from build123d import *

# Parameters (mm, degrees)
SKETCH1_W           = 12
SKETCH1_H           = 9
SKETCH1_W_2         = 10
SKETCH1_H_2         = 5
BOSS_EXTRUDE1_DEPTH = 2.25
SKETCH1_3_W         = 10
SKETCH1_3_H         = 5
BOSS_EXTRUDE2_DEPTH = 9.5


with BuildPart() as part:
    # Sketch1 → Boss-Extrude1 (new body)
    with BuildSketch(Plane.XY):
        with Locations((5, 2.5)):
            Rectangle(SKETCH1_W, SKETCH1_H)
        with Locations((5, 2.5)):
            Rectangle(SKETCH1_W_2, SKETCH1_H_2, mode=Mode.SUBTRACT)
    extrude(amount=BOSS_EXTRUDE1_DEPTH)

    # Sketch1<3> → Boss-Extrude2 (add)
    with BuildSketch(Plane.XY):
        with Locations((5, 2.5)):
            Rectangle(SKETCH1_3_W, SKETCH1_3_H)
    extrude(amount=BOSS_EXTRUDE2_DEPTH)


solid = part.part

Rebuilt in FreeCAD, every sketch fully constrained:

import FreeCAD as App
import Part
import Sketcher
Q = App.Units.Quantity

doc = App.newDocument("Part")
params = doc.addObject("Spreadsheet::Sheet", "Params")
for row, (alias, value) in enumerate([
    ("sketch1_width", "12 mm"),
    ("sketch1_width2", "10 mm"),
    ("sketch1_height", "9 mm"),
    ("sketch1_height2", "5 mm"),
    ("pad1_length", "2.25 mm"),
    ("sketch2_width", "10 mm"),
    ("sketch2_height", "5 mm"),
    ("pad2_length", "9.5 mm"),
], start=1):
    params.set(f"A{row}", alias)
    params.set(f"B{row}", "=" + value)
    params.setAlias(f"B{row}", alias)

body = doc.addObject("PartDesign::Body", "Body")

sketch1 = body.newObject("Sketcher::SketchObject", "Sketch")
sketch1.AttachmentSupport = (doc.getObject("XY_Plane"), [""])
sketch1.MapMode = "FlatFace"
sketch1.addGeometry(Part.LineSegment(App.Vector(-1, 7, 0), App.Vector(-1, -2, 0)), False)
sketch1.addGeometry(Part.LineSegment(App.Vector(-1, -2, 0), App.Vector(11, -2, 0)), False)
sketch1.addGeometry(Part.LineSegment(App.Vector(11, -2, 0), App.Vector(11, 7, 0)), False)
sketch1.addGeometry(Part.LineSegment(App.Vector(11, 7, 0), App.Vector(-1, 7, 0)), False)
sketch1.addGeometry(Part.LineSegment(App.Vector(10, 0, 0), App.Vector(0, 0, 0)), False)
sketch1.addGeometry(Part.LineSegment(App.Vector(0, 0, 0), App.Vector(0, 5, 0)), False)
sketch1.addGeometry(Part.LineSegment(App.Vector(0, 5, 0), App.Vector(10, 5, 0)), False)
sketch1.addGeometry(Part.LineSegment(App.Vector(10, 5, 0), App.Vector(10, 0, 0)), False)
sketch1.addConstraint(Sketcher.Constraint("Coincident", 0, 2, 1, 1))
sketch1.addConstraint(Sketcher.Constraint("Coincident", 1, 2, 2, 1))
sketch1.addConstraint(Sketcher.Constraint("Coincident", 2, 2, 3, 1))
sketch1.addConstraint(Sketcher.Constraint("Coincident", 3, 2, 0, 1))
sketch1.addConstraint(Sketcher.Constraint("Coincident", 4, 2, 5, 1))
sketch1.addConstraint(Sketcher.Constraint("Coincident", 5, 2, 6, 1))
sketch1.addConstraint(Sketcher.Constraint("Coincident", 6, 2, 7, 1))
sketch1.addConstraint(Sketcher.Constraint("Coincident", 7, 2, 4, 1))
sketch1.addConstraint(Sketcher.Constraint("Vertical", 0))
sketch1.addConstraint(Sketcher.Constraint("Horizontal", 1))
sketch1.addConstraint(Sketcher.Constraint("Vertical", 2))
sketch1.addConstraint(Sketcher.Constraint("Horizontal", 3))
sketch1.addConstraint(Sketcher.Constraint("Horizontal", 4))
sketch1.addConstraint(Sketcher.Constraint("Vertical", 5))
sketch1.addConstraint(Sketcher.Constraint("Horizontal", 6))
sketch1.addConstraint(Sketcher.Constraint("Vertical", 7))
sketch1.addConstraint(Sketcher.Constraint("Coincident", 4, 2, -1, 1))
sketch1.addConstraint(Sketcher.Constraint("DistanceX", 1, 1, 1, 2, Q("12 mm")))
sketch1.addConstraint(Sketcher.Constraint("DistanceX", 4, 2, 4, 1, Q("10 mm")))
sketch1.addConstraint(Sketcher.Constraint("DistanceY", 0, 2, 0, 1, Q("9 mm")))
sketch1.addConstraint(Sketcher.Constraint("DistanceY", 5, 1, 5, 2, Q("5 mm")))
sketch1.addConstraint(Sketcher.Constraint("DistanceX", 0, 2, -1, 1, Q("1 mm")))
sketch1.addConstraint(Sketcher.Constraint("DistanceY", 0, 2, -1, 1, Q("2 mm")))
sketch1.setExpression("Constraints[17]", "Params.sketch1_width")
sketch1.setExpression("Constraints[18]", "Params.sketch1_width2")
sketch1.setExpression("Constraints[19]", "Params.sketch1_height")
sketch1.setExpression("Constraints[20]", "Params.sketch1_height2")
pad1 = body.newObject("PartDesign::Pad", "Pad")
pad1.Profile = sketch1
pad1.setExpression("Length", "Params.pad1_length")

sketch2 = body.newObject("Sketcher::SketchObject", "Sketch001")
sketch2.AttachmentSupport = (doc.getObject("XY_Plane"), [""])
sketch2.MapMode = "FlatFace"
sketch2.addGeometry(Part.LineSegment(App.Vector(0, 5, 0), App.Vector(0, 0, 0)), False)
sketch2.addGeometry(Part.LineSegment(App.Vector(0, 0, 0), App.Vector(10, 0, 0)), False)
sketch2.addGeometry(Part.LineSegment(App.Vector(10, 0, 0), App.Vector(10, 5, 0)), False)
sketch2.addGeometry(Part.LineSegment(App.Vector(10, 5, 0), App.Vector(0, 5, 0)), False)
sketch2.addConstraint(Sketcher.Constraint("Coincident", 0, 2, 1, 1))
sketch2.addConstraint(Sketcher.Constraint("Coincident", 1, 2, 2, 1))
sketch2.addConstraint(Sketcher.Constraint("Coincident", 2, 2, 3, 1))
sketch2.addConstraint(Sketcher.Constraint("Coincident", 3, 2, 0, 1))
sketch2.addConstraint(Sketcher.Constraint("Vertical", 0))
sketch2.addConstraint(Sketcher.Constraint("Horizontal", 1))
sketch2.addConstraint(Sketcher.Constraint("Vertical", 2))
sketch2.addConstraint(Sketcher.Constraint("Horizontal", 3))
sketch2.addConstraint(Sketcher.Constraint("Coincident", 0, 2, -1, 1))
sketch2.addConstraint(Sketcher.Constraint("DistanceX", 1, 1, 1, 2, Q("10 mm")))
sketch2.addConstraint(Sketcher.Constraint("DistanceY", 0, 2, 0, 1, Q("5 mm")))
sketch2.setExpression("Constraints[9]", "Params.sketch2_width")
sketch2.setExpression("Constraints[10]", "Params.sketch2_height")
pad2 = body.newObject("PartDesign::Pad", "Pad001")
pad2.Profile = sketch2
pad2.setExpression("Length", "Params.pad2_length")

doc.recompute()
